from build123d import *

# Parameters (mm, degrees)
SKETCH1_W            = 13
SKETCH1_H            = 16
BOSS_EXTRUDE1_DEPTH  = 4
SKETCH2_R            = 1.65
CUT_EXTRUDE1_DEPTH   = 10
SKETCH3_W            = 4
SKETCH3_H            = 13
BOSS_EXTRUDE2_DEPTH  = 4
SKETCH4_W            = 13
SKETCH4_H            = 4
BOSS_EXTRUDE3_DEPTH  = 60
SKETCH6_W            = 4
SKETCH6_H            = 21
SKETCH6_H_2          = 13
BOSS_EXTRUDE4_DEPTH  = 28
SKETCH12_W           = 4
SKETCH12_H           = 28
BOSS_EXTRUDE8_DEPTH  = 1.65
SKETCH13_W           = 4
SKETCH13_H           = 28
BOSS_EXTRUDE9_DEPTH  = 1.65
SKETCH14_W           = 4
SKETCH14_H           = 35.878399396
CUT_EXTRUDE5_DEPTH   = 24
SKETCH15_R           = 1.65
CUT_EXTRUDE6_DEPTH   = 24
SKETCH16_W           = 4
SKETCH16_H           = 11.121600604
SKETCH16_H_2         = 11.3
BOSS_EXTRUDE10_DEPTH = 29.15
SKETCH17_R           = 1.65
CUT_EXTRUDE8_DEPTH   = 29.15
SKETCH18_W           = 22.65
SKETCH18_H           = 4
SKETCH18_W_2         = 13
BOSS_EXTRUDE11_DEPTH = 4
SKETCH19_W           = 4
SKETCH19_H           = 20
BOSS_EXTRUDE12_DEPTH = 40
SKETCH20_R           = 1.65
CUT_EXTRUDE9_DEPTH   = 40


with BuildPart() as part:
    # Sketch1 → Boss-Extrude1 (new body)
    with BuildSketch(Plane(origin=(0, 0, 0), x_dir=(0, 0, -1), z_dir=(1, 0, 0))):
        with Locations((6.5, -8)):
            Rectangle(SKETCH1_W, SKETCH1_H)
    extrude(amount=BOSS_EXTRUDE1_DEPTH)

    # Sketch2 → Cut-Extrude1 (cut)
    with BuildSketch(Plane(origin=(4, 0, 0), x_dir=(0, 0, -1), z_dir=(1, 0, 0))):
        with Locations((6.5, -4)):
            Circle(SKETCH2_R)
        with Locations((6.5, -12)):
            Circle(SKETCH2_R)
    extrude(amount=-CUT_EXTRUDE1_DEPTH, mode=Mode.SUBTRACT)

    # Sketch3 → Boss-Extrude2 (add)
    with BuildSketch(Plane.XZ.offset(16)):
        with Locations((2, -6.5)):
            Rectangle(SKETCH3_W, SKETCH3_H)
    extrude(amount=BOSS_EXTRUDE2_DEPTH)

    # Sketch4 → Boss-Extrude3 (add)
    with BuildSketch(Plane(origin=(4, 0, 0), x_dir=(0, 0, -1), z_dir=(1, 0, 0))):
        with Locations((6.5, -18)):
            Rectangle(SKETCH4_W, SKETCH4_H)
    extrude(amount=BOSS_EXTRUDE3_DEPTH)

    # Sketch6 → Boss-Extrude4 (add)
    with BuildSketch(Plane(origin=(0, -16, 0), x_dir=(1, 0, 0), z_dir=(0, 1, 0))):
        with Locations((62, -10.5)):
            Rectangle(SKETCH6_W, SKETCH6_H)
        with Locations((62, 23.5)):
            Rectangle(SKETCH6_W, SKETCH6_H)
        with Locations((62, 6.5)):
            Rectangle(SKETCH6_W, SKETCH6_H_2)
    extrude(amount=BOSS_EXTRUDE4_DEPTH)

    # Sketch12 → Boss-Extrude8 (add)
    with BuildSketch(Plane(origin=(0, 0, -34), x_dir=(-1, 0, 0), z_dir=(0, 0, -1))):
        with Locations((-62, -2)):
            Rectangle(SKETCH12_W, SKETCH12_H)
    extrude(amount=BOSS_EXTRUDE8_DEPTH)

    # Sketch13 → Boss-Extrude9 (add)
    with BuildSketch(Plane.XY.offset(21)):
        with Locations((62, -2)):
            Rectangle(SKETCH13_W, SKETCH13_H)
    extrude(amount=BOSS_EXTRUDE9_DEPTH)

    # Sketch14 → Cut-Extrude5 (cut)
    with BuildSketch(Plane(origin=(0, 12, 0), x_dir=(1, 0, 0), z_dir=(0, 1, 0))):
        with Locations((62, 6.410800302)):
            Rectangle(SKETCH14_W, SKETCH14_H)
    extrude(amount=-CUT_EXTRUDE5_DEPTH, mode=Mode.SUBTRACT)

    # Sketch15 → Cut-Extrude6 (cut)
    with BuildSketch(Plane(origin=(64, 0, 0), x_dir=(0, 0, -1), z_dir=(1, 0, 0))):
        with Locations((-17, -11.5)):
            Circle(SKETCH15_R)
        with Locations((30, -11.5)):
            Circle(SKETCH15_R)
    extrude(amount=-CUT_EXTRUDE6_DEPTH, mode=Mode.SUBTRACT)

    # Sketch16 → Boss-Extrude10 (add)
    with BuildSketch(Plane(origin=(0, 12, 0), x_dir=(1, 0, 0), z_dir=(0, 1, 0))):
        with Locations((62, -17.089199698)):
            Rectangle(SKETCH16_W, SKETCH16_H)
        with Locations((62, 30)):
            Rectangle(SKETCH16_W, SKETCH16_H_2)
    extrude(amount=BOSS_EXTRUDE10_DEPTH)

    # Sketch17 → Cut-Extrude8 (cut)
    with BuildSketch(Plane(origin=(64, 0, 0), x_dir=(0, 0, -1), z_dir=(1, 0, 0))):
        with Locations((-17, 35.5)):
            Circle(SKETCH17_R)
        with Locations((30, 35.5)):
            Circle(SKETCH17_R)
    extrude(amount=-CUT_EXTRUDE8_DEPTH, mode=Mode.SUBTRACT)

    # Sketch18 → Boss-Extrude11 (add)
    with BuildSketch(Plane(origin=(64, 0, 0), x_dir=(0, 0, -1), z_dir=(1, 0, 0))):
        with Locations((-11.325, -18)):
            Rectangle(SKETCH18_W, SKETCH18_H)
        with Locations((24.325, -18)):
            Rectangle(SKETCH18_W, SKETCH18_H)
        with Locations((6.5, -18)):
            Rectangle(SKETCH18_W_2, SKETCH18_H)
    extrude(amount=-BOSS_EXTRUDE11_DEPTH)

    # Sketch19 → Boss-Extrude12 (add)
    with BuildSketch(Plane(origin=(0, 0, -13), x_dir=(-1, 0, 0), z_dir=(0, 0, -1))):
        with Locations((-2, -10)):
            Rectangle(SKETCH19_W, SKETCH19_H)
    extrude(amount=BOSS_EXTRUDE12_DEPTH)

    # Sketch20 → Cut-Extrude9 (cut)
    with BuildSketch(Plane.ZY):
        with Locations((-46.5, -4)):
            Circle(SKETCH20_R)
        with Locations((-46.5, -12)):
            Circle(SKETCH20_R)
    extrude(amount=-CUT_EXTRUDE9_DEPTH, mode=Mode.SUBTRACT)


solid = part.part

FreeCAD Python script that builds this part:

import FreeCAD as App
import Part
import Sketcher

doc = App.newDocument("Part")
body = doc.addObject("PartDesign::Body", "Body")

sketch1 = doc.addObject("Sketcher::SketchObject", "Sketch")
body.addObject(sketch1)
sketch1.AttachmentSupport = (doc.YZ_Plane, [""])
sketch1.MapMode = "FlatFace"
sketch1.addGeometry([
    Part.LineSegment(App.Vector(0, 0, 0), App.Vector(-16, 0, 0)),
    Part.LineSegment(App.Vector(-16, 0, 0), App.Vector(-16, -13, 0)),
    Part.LineSegment(App.Vector(-16, -13, 0), App.Vector(0, -13, 0)),
    Part.LineSegment(App.Vector(0, -13, 0), App.Vector(0, 0, 0)),
], False)
sketch1.addConstraint([
    Sketcher.Constraint("Coincident", 0, 2, 1, 1),
    Sketcher.Constraint("Coincident", 1, 2, 2, 1),
    Sketcher.Constraint("Coincident", 2, 2, 3, 1),
    Sketcher.Constraint("Coincident", 3, 2, 0, 1),
    Sketcher.Constraint("Horizontal", 0),
    Sketcher.Constraint("Vertical", 1),
    Sketcher.Constraint("Horizontal", 2),
    Sketcher.Constraint("Vertical", 3),
    Sketcher.Constraint("Coincident", 3, 2, -1, 1),
    Sketcher.Constraint("DistanceX", 0, 2, 0, 1, 16.0),
    Sketcher.Constraint("DistanceY", 1, 2, 1, 1, 13.0),
])
pad1 = doc.addObject("PartDesign::Pad", "Pad")
body.addObject(pad1)
pad1.Profile = sketch1
pad1.Length = 4

sketch2 = doc.addObject("Sketcher::SketchObject", "Sketch001")
body.addObject(sketch2)
sketch2.AttachmentSupport = (doc.YZ_Plane, [""])
sketch2.MapMode = "FlatFace"
sketch2.AttachmentOffset = App.Placement(App.Vector(0, 0, 4), App.Rotation())
sketch2.addGeometry([
    Part.Circle(App.Vector(-4, -6.5, 0), App.Vector(0, 0, 1), 1.6),
    Part.Circle(App.Vector(-12, -6.5, 0), App.Vector(0, 0, 1), 1.6),
], False)
sketch2.addConstraint([
    Sketcher.Constraint("Equal", 0, 1),
    Sketcher.Constraint("Horizontal", 0, 3, 1, 3),
    Sketcher.Constraint("Diameter", 0, 3.3),
    Sketcher.Constraint("DistanceX", 0, 3, -1, 1, 4.0),
    Sketcher.Constraint("DistanceX", 1, 3, -1, 1, 12.0),
    Sketcher.Constraint("DistanceY", 0, 3, -1, 1, 6.5),
])
pocket1 = doc.addObject("PartDesign::Pocket", "Pocket")
body.addObject(pocket1)
pocket1.Profile = sketch2
pocket1.Length = 10

sketch3 = doc.addObject("Sketcher::SketchObject", "Sketch002")
body.addObject(sketch3)
sketch3.AttachmentSupport = (doc.XZ_Plane, [""])
sketch3.MapMode = "FlatFace"
sketch3.AttachmentOffset = App.Placement(App.Vector(0, 0, 16), App.Rotation())
sketch3.addGeometry([
    Part.LineSegment(App.Vector(0, 0, 0), App.Vector(0, -13, 0)),
    Part.LineSegment(App.Vector(0, -13, 0), App.Vector(4, -13, 0)),
    Part.LineSegment(App.Vector(4, -13, 0), App.Vector(4, 0, 0)),
    Part.LineSegment(App.Vector(4, 0, 0), App.Vector(0, 0, 0)),
], False)
sketch3.addConstraint([
    Sketcher.Constraint("Coincident", 0, 2, 1, 1),
    Sketcher.Constraint("Coincident", 1, 2, 2, 1),
    Sketcher.Constraint("Coincident", 2, 2, 3, 1),
    Sketcher.Constraint("Coincident", 3, 2, 0, 1),
    Sketcher.Constraint("Vertical", 0),
    Sketcher.Constraint("Horizontal", 1),
    Sketcher.Constraint("Vertical", 2),
    Sketcher.Constraint("Horizontal", 3),
    Sketcher.Constraint("Coincident", 3, 2, -1, 1),
    Sketcher.Constraint("DistanceX", 1, 1, 1, 2, 4.0),
    Sketcher.Constraint("DistanceY", 0, 2, 0, 1, 13.0),
])
pad2 = doc.addObject("PartDesign::Pad", "Pad001")
body.addObject(pad2)
pad2.Profile = sketch3
pad2.Length = 4

sketch4 = doc.addObject("Sketcher::SketchObject", "Sketch003")
body.addObject(sketch4)
sketch4.AttachmentSupport = (doc.YZ_Plane, [""])
sketch4.MapMode = "FlatFace"
sketch4.AttachmentOffset = App.Placement(App.Vector(0, 0, 4), App.Rotation())
sketch4.addGeometry([
    Part.LineSegment(App.Vector(-16, 0, 0), App.Vector(-20, 0, 0)),
    Part.LineSegment(App.Vector(-20, 0, 0), App.Vector(-20, -13, 0)),
    Part.LineSegment(App.Vector(-20, -13, 0), App.Vector(-16, -13, 0)),
    Part.LineSegment(App.Vector(-16, -13, 0), App.Vector(-16, 0, 0)),
], False)
sketch4.addConstraint([
    Sketcher.Constraint("Coincident", 0, 2, 1, 1),
    Sketcher.Constraint("Coincident", 1, 2, 2, 1),
    Sketcher.Constraint("Coincident", 2, 2, 3, 1),
    Sketcher.Constraint("Coincident", 3, 2, 0, 1),
    Sketcher.Constraint("Horizontal", 0),
    Sketcher.Constraint("Vertical", 1),
    Sketcher.Constraint("Horizontal", 2),
    Sketcher.Constraint("Vertical", 3),
    Sketcher.Constraint("PointOnObject", 0, 2, -1),
    Sketcher.Constraint("DistanceX", 0, 2, 0, 1, 4.0),
    Sketcher.Constraint("DistanceY", 1, 2, 1, 1, 13.0),
    Sketcher.Constraint("DistanceX", 0, 2, -1, 1, 20.0),
])
pad3 = doc.addObject("PartDesign::Pad", "Pad002")
body.addObject(pad3)
pad3.Profile = sketch4
pad3.Length = 60

sketch5 = doc.addObject("Sketcher::SketchObject", "Sketch004")
body.addObject(sketch5)
sketch5.AttachmentSupport = (doc.XZ_Plane, [""])
sketch5.MapMode = "FlatFace"
sketch5.AttachmentOffset = App.Placement(App.Vector(0, 0, 16), App.Rotation())
sketch5.addGeometry([
    Part.LineSegment(App.Vector(60, 21, 0), App.Vector(64, 21, 0)),
    Part.LineSegment(App.Vector(64, 21, 0), App.Vector(64, -34, 0)),
    Part.LineSegment(App.Vector(64, -34, 0), App.Vector(60, -34, 0)),
    Part.LineSegment(App.Vector(60, -34, 0), App.Vector(60, 21, 0)),
], False)
sketch5.addConstraint([
    Sketcher.Constraint("Coincident", 0, 2, 1, 1),
    Sketcher.Constraint("Coincident", 1, 2, 2, 1),
    Sketcher.Constraint("Coincident", 2, 2, 3, 1),
    Sketcher.Constraint("Coincident", 3, 2, 0, 1),
    Sketcher.Constraint("Horizontal", 0),
    Sketcher.Constraint("Vertical", 1),
    Sketcher.Constraint("Horizontal", 2),
    Sketcher.Constraint("Vertical", 3),
    Sketcher.Constraint("DistanceX", 0, 1, 0, 2, 4.0),
    Sketcher.Constraint("DistanceY", 1, 2, 1, 1, 55.0),
    Sketcher.Constraint("DistanceX", -1, 1, 0, 2, 64.0),
    Sketcher.Constraint("DistanceY", -1, 1, 0, 2, 21.0),
])
pad4 = doc.addObject("PartDesign::Pad", "Pad003")
body.addObject(pad4)
pad4.Profile = sketch5
pad4.Length = 28
pad4.Reversed = True

sketch6 = doc.addObject("Sketcher::SketchObject", "Sketch005")
body.addObject(sketch6)
sketch6.AttachmentSupport = (doc.XY_Plane, [""])
sketch6.MapMode = "FlatFace"
sketch6.AttachmentOffset = App.Placement(App.Vector(0, 0, -34), App.Rotation())
sketch6.addGeometry([
    Part.LineSegment(App.Vector(64, 12, 0), App.Vector(64, -16, 0)),
    Part.LineSegment(App.Vector(64, -16, 0), App.Vector(60, -16, 0)),
    Part.LineSegment(App.Vector(60, -16, 0), App.Vector(60, 12, 0)),
    Part.LineSegment(App.Vector(60, 12, 0), App.Vector(64, 12, 0)),
], False)
sketch6.addConstraint([
    Sketcher.Constraint("Coincident", 0, 2, 1, 1),
    Sketcher.Constraint("Coincident", 1, 2, 2, 1),
    Sketcher.Constraint("Coincident", 2, 2, 3, 1),
    Sketcher.Constraint("Coincident", 3, 2, 0, 1),
    Sketcher.Constraint("Vertical", 0),
    Sketcher.Constraint("Horizontal", 1),
    Sketcher.Constraint("Vertical", 2),
    Sketcher.Constraint("Horizontal", 3),
    Sketcher.Constraint("DistanceX", 1, 2, 1, 1, 4.0),
    Sketcher.Constraint("DistanceY", 0, 2, 0, 1, 28.0),
    Sketcher.Constraint("DistanceX", -1, 1, 0, 2, 64.0),
    Sketcher.Constraint("DistanceY", 0, 2, -1, 1, 16.0),
])
pad5 = doc.addObject("PartDesign::Pad", "Pad004")
body.addObject(pad5)
pad5.Profile = sketch6
pad5.Length = 1.65
pad5.Reversed = True

sketch7 = doc.addObject("Sketcher::SketchObject", "Sketch006")
body.addObject(sketch7)
sketch7.AttachmentSupport = (doc.XY_Plane, [""])
sketch7.MapMode = "FlatFace"
sketch7.AttachmentOffset = App.Placement(App.Vector(0, 0, 21), App.Rotation())
sketch7.addGeometry([
    Part.LineSegment(App.Vector(60, 12, 0), App.Vector(60, -16, 0)),
    Part.LineSegment(App.Vector(60, -16, 0), App.Vector(64, -16, 0)),
    Part.LineSegment(App.Vector(64, -16, 0), App.Vector(64, 12, 0)),
    Part.LineSegment(App.Vector(64, 12, 0), App.Vector(60, 12, 0)),
], False)
sketch7.addConstraint([
    Sketcher.Constraint("Coincident", 0, 2, 1, 1),
    Sketcher.Constraint("Coincident", 1, 2, 2, 1),
    Sketcher.Constraint("Coincident", 2, 2, 3, 1),
    Sketcher.Constraint("Coincident", 3, 2, 0, 1),
    Sketcher.Constraint("Vertical", 0),
    Sketcher.Constraint("Horizontal", 1),
    Sketcher.Constraint("Vertical", 2),
    Sketcher.Constraint("Horizontal", 3),
    Sketcher.Constraint("DistanceX", 1, 1, 1, 2, 4.0),
    Sketcher.Constraint("DistanceY", 0, 2, 0, 1, 28.0),
    Sketcher.Constraint("DistanceX", -1, 1, 0, 2, 60.0),
    Sketcher.Constraint("DistanceY", 0, 2, -1, 1, 16.0),
])
pad6 = doc.addObject("PartDesign::Pad", "Pad005")
body.addObject(pad6)
pad6.Profile = sketch7
pad6.Length = 1.65

sketch8 = doc.addObject("Sketcher::SketchObject", "Sketch007")
body.addObject(sketch8)
sketch8.AttachmentSupport = (doc.XZ_Plane, [""])
sketch8.MapMode = "FlatFace"
sketch8.AttachmentOffset = App.Placement(App.Vector(0, 0, -12), App.Rotation())
sketch8.addGeometry([
    Part.LineSegment(App.Vector(60, -24.4, 0), App.Vector(60, 11.5, 0)),
    Part.LineSegment(App.Vector(60, 11.5, 0), App.Vector(64, 11.5, 0)),
    Part.LineSegment(App.Vector(64, 11.5, 0), App.Vector(64, -24.4, 0)),
    Part.LineSegment(App.Vector(64, -24.4, 0), App.Vector(60, -24.4, 0)),
], False)
sketch8.addConstraint([
    Sketcher.Constraint("Coincident", 0, 2, 1, 1),
    Sketcher.Constraint("Coincident", 1, 2, 2, 1),
    Sketcher.Constraint("Coincident", 2, 2, 3, 1),
    Sketcher.Constraint("Coincident", 3, 2, 0, 1),
    Sketcher.Constraint("Vertical", 0),
    Sketcher.Constraint("Horizontal", 1),
    Sketcher.Constraint("Vertical", 2),
    Sketcher.Constraint("Horizontal", 3),
    Sketcher.Constraint("DistanceX", 1, 1, 1, 2, 4.0),
    Sketcher.Constraint("DistanceX", -1, 1, 0, 2, 60.0),
    Sketcher.Constraint("DistanceY", 2, 2, -1, 1, 24.35),
    Sketcher.Constraint("DistanceY", 0, 1, 0, 2, 35.878399),
])
pocket2 = doc.addObject("PartDesign::Pocket", "Pocket001")
body.addObject(pocket2)
pocket2.Profile = sketch8
pocket2.Length = 24
pocket2.Reversed = True

sketch9 = doc.addObject("Sketcher::SketchObject", "Sketch008")
body.addObject(sketch9)
sketch9.AttachmentSupport = (doc.YZ_Plane, [""])
sketch9.MapMode = "FlatFace"
sketch9.AttachmentOffset = App.Placement(App.Vector(0, 0, 64), App.Rotation())
sketch9.addGeometry([
    Part.Circle(App.Vector(-11.5, 17, 0), App.Vector(0, 0, 1), 1.6),
    Part.Circle(App.Vector(-11.5, -30, 0), App.Vector(0, 0, 1), 1.6),
], False)
sketch9.addConstraint([
    Sketcher.Constraint("Equal", 0, 1),
    Sketcher.Constraint("Vertical", 0, 3, 1, 3),
    Sketcher.Constraint("Diameter", 0, 3.3),
    Sketcher.Constraint("DistanceY", -1, 1, 0, 3, 17.0),
    Sketcher.Constraint("DistanceY", 1, 3, -1, 1, 30.0),
    Sketcher.Constraint("DistanceX", 0, 3, -1, 1, 11.5),
])
pocket3 = doc.addObject("PartDesign::Pocket", "Pocket002")
body.addObject(pocket3)
pocket3.Profile = sketch9
pocket3.Length = 24

sketch10 = doc.addObject("Sketcher::SketchObject", "Sketch009")
body.addObject(sketch10)
sketch10.AttachmentSupport = (doc.XZ_Plane, [""])
sketch10.MapMode = "FlatFace"
sketch10.AttachmentOffset = App.Placement(App.Vector(0, 0, -12), App.Rotation())
sketch10.addGeometry([
    Part.LineSegment(App.Vector(60, 11.5, 0), App.Vector(60, 22.6, 0)),
    Part.LineSegment(App.Vector(60, 22.6, 0), App.Vector(64, 22.6, 0)),
    Part.LineSegment(App.Vector(64, 22.6, 0), App.Vector(64, 11.5, 0)),
    Part.LineSegment(App.Vector(64, 11.5, 0), App.Vector(60, 11.5, 0)),
    Part.LineSegment(App.Vector(60, -35.6, 0), App.Vector(60, -24.4, 0)),
    Part.LineSegment(App.Vector(60, -24.4, 0), App.Vector(64, -24.4, 0)),
    Part.LineSegment(App.Vector(64, -24.4, 0), App.Vector(64, -35.6, 0)),
    Part.LineSegment(App.Vector(64, -35.6, 0), App.Vector(60, -35.6, 0)),
], False)
sketch10.addConstraint([
    Sketcher.Constraint("Coincident", 0, 2, 1, 1),
    Sketcher.Constraint("Coincident", 1, 2, 2, 1),
    Sketcher.Constraint("Coincident", 2, 2, 3, 1),
    Sketcher.Constraint("Coincident", 3, 2, 0, 1),
    Sketcher.Constraint("Coincident", 4, 2, 5, 1),
    Sketcher.Constraint("Coincident", 5, 2, 6, 1),
    Sketcher.Constraint("Coincident", 6, 2, 7, 1),
    Sketcher.Constraint("Coincident", 7, 2, 4, 1),
    Sketcher.Constraint("Vertical", 0),
    Sketcher.Constraint("Horizontal", 1),
    Sketcher.Constraint("Vertical", 2),
    Sketcher.Constraint("Horizontal", 3),
    Sketcher.Constraint("Vertical", 4),
    Sketcher.Constraint("Horizontal", 5),
    Sketcher.Constraint("Vertical", 6),
    Sketcher.Constraint("Horizontal", 7),
    Sketcher.Constraint("Vertical", 3, 2, 4, 2),
    Sketcher.Constraint("Vertical", 2, 2, 5, 2),
    Sketcher.Constraint("DistanceX", 1, 1, 1, 2, 4.0),
    Sketcher.Constraint("DistanceY", 4, 1, 4, 2, 11.3),
    Sketcher.Constraint("DistanceX", -1, 1, 0, 2, 60.0),
    Sketcher.Constraint("DistanceY", 4, 2, 0, 2, 47.0),
    Sketcher.Constraint("DistanceY", -1, 1, 0, 2, 22.65),
    Sketcher.Constraint("DistanceY", 0, 1, 0, 2, 11.121601),
])
pad7 = doc.addObject("PartDesign::Pad", "Pad006")
body.addObject(pad7)
pad7.Profile = sketch10
pad7.Length = 29.15
pad7.Reversed = True

sketch11 = doc.addObject("Sketcher::SketchObject", "Sketch010")
body.addObject(sketch11)
sketch11.AttachmentSupport = (doc.YZ_Plane, [""])
sketch11.MapMode = "FlatFace"
sketch11.AttachmentOffset = App.Placement(App.Vector(0, 0, 64), App.Rotation())
sketch11.addGeometry([
    Part.Circle(App.Vector(35.5, 17, 0), App.Vector(0, 0, 1), 1.6),
    Part.Circle(App.Vector(35.5, -30, 0), App.Vector(0, 0, 1), 1.6),
], False)
sketch11.addConstraint([
    Sketcher.Constraint("Equal", 0, 1),
    Sketcher.Constraint("Vertical", 0, 3, 1, 3),
    Sketcher.Constraint("Diameter", 0, 3.3),
    Sketcher.Constraint("DistanceY", -1, 1, 0, 3, 17.0),
    Sketcher.Constraint("DistanceY", 1, 3, -1, 1, 30.0),
    Sketcher.Constraint("DistanceX", -1, 1, 0, 3, 35.5),
])
pocket4 = doc.addObject("PartDesign::Pocket", "Pocket003")
body.addObject(pocket4)
pocket4.Profile = sketch11
pocket4.Length = 29.15

sketch12 = doc.addObject("Sketcher::SketchObject", "Sketch011")
body.addObject(sketch12)
sketch12.AttachmentSupport = (doc.YZ_Plane, [""])
sketch12.MapMode = "FlatFace"
sketch12.AttachmentOffset = App.Placement(App.Vector(0, 0, 64), App.Rotation())
sketch12.addGeometry([
    Part.LineSegment(App.Vector(-16, 22.6, 0), App.Vector(-20, 22.6, 0)),
    Part.LineSegment(App.Vector(-20, 22.6, 0), App.Vector(-20, -35.6, 0)),
    Part.LineSegment(App.Vector(-20, -35.6, 0), App.Vector(-16, -35.6, 0)),
    Part.LineSegment(App.Vector(-16, -35.6, 0), App.Vector(-16, 22.6, 0)),
], False)
sketch12.addConstraint([
    Sketcher.Constraint("Coincident", 0, 2, 1, 1),
    Sketcher.Constraint("Coincident", 1, 2, 2, 1),
    Sketcher.Constraint("Coincident", 2, 2, 3, 1),
    Sketcher.Constraint("Coincident", 3, 2, 0, 1),
    Sketcher.Constraint("Horizontal", 0),
    Sketcher.Constraint("Vertical", 1),
    Sketcher.Constraint("Horizontal", 2),
    Sketcher.Constraint("Vertical", 3),
    Sketcher.Constraint("DistanceX", 0, 2, 0, 1, 4.0),
    Sketcher.Constraint("DistanceY", 1, 2, 1, 1, 58.3),
    Sketcher.Constraint("DistanceX", 0, 2, -1, 1, 20.0),
    Sketcher.Constraint("DistanceY", -1, 1, 0, 2, 22.65),
])
pad8 = doc.addObject("PartDesign::Pad", "Pad007")
body.addObject(pad8)
pad8.Profile = sketch12
pad8.Length = 4
pad8.Reversed = True

sketch13 = doc.addObject("Sketcher::SketchObject", "Sketch012")
body.addObject(sketch13)
sketch13.AttachmentSupport = (doc.XY_Plane, [""])
sketch13.MapMode = "FlatFace"
sketch13.AttachmentOffset = App.Placement(App.Vector(0, 0, -13), App.Rotation())
sketch13.addGeometry([
    Part.LineSegment(App.Vector(4, 0, 0), App.Vector(4, -20, 0)),
    Part.LineSegment(App.Vector(4, -20, 0), App.Vector(0, -20, 0)),
    Part.LineSegment(App.Vector(0, -20, 0), App.Vector(0, 0, 0)),
    Part.LineSegment(App.Vector(0, 0, 0), App.Vector(4, 0, 0)),
], False)
sketch13.addConstraint([
    Sketcher.Constraint("Coincident", 0, 2, 1, 1),
    Sketcher.Constraint("Coincident", 1, 2, 2, 1),
    Sketcher.Constraint("Coincident", 2, 2, 3, 1),
    Sketcher.Constraint("Coincident", 3, 2, 0, 1),
    Sketcher.Constraint("Vertical", 0),
    Sketcher.Constraint("Horizontal", 1),
    Sketcher.Constraint("Vertical", 2),
    Sketcher.Constraint("Horizontal", 3),
    Sketcher.Constraint("Coincident", 2, 2, -1, 1),
    Sketcher.Constraint("DistanceX", 1, 2, 1, 1, 4.0),
    Sketcher.Constraint("DistanceY", 0, 2, 0, 1, 20.0),
])
pad9 = doc.addObject("PartDesign::Pad", "Pad008")
body.addObject(pad9)
pad9.Profile = sketch13
pad9.Length = 40
pad9.Reversed = True

sketch14 = doc.addObject("Sketcher::SketchObject", "Sketch013")
body.addObject(sketch14)
sketch14.AttachmentSupport = (doc.YZ_Plane, [""])
sketch14.MapMode = "FlatFace"
sketch14.addGeometry([
    Part.Circle(App.Vector(-4, -46.5, 0), App.Vector(0, 0, 1), 1.6),
    Part.Circle(App.Vector(-12, -46.5, 0), App.Vector(0, 0, 1), 1.6),
], False)
sketch14.addConstraint([
    Sketcher.Constraint("Equal", 0, 1),
    Sketcher.Constraint("Horizontal", 0, 3, 1, 3),
    Sketcher.Constraint("Diameter", 0, 3.3),
    Sketcher.Constraint("DistanceX", 0, 3, -1, 1, 4.0),
    Sketcher.Constraint("DistanceX", 1, 3, -1, 1, 12.0),
    Sketcher.Constraint("DistanceY", 0, 3, -1, 1, 46.5),
])
pocket5 = doc.addObject("PartDesign::Pocket", "Pocket004")
body.addObject(pocket5)
pocket5.Profile = sketch14
pocket5.Length = 40
pocket5.Reversed = True

doc.recompute()
